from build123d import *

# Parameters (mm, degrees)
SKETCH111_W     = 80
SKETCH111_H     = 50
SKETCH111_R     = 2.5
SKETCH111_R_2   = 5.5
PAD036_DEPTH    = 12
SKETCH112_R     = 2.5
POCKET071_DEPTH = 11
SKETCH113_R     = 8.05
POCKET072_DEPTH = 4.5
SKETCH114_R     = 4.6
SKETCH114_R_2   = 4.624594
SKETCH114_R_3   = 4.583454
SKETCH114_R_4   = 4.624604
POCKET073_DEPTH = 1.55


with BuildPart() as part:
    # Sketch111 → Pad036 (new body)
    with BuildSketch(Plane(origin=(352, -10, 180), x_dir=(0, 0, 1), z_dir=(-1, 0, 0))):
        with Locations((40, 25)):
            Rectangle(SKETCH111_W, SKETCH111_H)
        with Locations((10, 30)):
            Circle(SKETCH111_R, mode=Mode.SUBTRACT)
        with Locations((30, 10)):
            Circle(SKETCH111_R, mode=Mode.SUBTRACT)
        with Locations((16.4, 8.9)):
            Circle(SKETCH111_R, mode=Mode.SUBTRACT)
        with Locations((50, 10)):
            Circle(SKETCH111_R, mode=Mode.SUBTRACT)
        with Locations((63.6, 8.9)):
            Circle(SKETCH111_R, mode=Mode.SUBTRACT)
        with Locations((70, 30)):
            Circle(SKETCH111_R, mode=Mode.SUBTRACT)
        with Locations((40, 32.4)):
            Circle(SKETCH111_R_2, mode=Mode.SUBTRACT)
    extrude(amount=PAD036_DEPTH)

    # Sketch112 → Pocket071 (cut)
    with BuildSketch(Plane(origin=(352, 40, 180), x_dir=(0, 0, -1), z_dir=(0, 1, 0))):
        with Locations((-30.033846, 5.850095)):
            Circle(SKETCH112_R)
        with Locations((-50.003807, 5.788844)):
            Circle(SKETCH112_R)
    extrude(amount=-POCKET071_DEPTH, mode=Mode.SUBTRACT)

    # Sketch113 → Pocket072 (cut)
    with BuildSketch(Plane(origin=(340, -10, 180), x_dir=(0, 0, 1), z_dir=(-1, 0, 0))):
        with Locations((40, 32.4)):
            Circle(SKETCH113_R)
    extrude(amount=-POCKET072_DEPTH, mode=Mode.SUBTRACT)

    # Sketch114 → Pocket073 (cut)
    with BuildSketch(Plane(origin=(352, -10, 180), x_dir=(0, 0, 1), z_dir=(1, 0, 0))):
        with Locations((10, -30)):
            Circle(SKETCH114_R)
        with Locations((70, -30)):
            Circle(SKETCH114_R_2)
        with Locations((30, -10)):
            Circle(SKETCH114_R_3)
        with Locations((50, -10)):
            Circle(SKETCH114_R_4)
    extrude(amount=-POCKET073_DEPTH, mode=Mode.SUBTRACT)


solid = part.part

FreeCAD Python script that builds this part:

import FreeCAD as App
import Part
import Sketcher
from FreeCAD import Vector

doc = App.newDocument("Part")
body = doc.addObject("PartDesign::Body", "Body")

# Sketch on YZ plane
sketch1 = doc.addObject("Sketcher::SketchObject", "Sketch")
body.addObject(sketch1)
sketch1.AttachmentSupport = (doc.YZ_Plane, [""])
sketch1.MapMode = "FlatFace"
sketch1.AttachmentOffset = App.Placement(Vector(0, 0, 352), App.Rotation())
sketch1.addGeometry([
    Part.LineSegment(Vector(40, 180, 0), Vector(-10, 180, 0)),  # 0
    Part.LineSegment(Vector(-10, 180, 0), Vector(-10, 260, 0)),  # 1
    Part.LineSegment(Vector(-10, 260, 0), Vector(40, 260, 0)),  # 2
    Part.LineSegment(Vector(40, 260, 0), Vector(40, 180, 0)),  # 3
    Part.Circle(Vector(-1.1, 196.4, 0), Vector(0, 0, 1), 2.5),  # 4
    Part.Circle(Vector(0, 210, 0), Vector(0, 0, 1), 2.5),  # 5
    Part.Circle(Vector(0, 230, 0), Vector(0, 0, 1), 2.5),  # 6
    Part.Circle(Vector(-1.1, 243.6, 0), Vector(0, 0, 1), 2.5),  # 7
    Part.Circle(Vector(20, 190, 0), Vector(0, 0, 1), 2.5),  # 8
    Part.Circle(Vector(20, 250, 0), Vector(0, 0, 1), 2.5),  # 9
    Part.Circle(Vector(22.4, 220, 0), Vector(0, 0, 1), 5.5),  # 10
], False)
sketch1.addConstraint([
    Sketcher.Constraint("Coincident", 0, 2, 1, 1),
    Sketcher.Constraint("Coincident", 1, 2, 2, 1),
    Sketcher.Constraint("Coincident", 2, 2, 3, 1),
    Sketcher.Constraint("Coincident", 3, 2, 0, 1),
    Sketcher.Constraint("Horizontal", 0),
    Sketcher.Constraint("Vertical", 1),
    Sketcher.Constraint("Horizontal", 2),
    Sketcher.Constraint("Vertical", 3),
    Sketcher.Constraint("Equal", 4, 5),
    Sketcher.Constraint("Equal", 5, 6),
    Sketcher.Constraint("Equal", 6, 7),
    Sketcher.Constraint("Equal", 7, 8),
    Sketcher.Constraint("Equal", 8, 9),
    Sketcher.Constraint("PointOnObject", 5, 3, -2),
    Sketcher.Constraint("PointOnObject", 6, 3, -2),
    Sketcher.Constraint("Vertical", 4, 3, 7, 3),
    Sketcher.Constraint("Vertical", 8, 3, 9, 3),
    Sketcher.Constraint("Diameter", 4, 5.0),
    Sketcher.Constraint("Diameter", 10, 11.0),
    Sketcher.Constraint("DistanceX", 0, 2, 0, 1, 50.0),
    Sketcher.Constraint("DistanceY", 1, 1, 1, 2, 80.0),
    Sketcher.Constraint("DistanceY", -1, 1, 5, 3, 210.0),
    Sketcher.Constraint("DistanceY", -1, 1, 6, 3, 230.0),
    Sketcher.Constraint("DistanceX", -1, 1, 8, 3, 20.0),
    Sketcher.Constraint("DistanceY", -1, 1, 8, 3, 190.0),
    Sketcher.Constraint("DistanceY", -1, 1, 9, 3, 250.0),
    Sketcher.Constraint("DistanceY", -1, 1, 10, 3, 220.0),
    Sketcher.Constraint("DistanceX", 0, 2, -1, 1, 10.0),
    Sketcher.Constraint("DistanceY", -1, 1, 0, 2, 180.0),
    Sketcher.Constraint("DistanceX", 4, 3, -1, 1, 1.1),
    Sketcher.Constraint("DistanceY", -1, 1, 4, 3, 196.4),
    Sketcher.Constraint("DistanceY", -1, 1, 7, 3, 243.6),
    Sketcher.Constraint("DistanceX", -1, 1, 10, 3, 22.4),
])
pad1 = doc.addObject("PartDesign::Pad", "Pad")
body.addObject(pad1)
pad1.Profile = sketch1
pad1.Length = 12
pad1.Reversed = True

# Sketch on XZ plane
sketch2 = doc.addObject("Sketcher::SketchObject", "Sketch001")
body.addObject(sketch2)
sketch2.AttachmentSupport = (doc.XZ_Plane, [""])
sketch2.MapMode = "FlatFace"
sketch2.AttachmentOffset = App.Placement(Vector(0, 0, -40), App.Rotation())
sketch2.addGeometry([
    Part.Circle(Vector(346.1, 210, 0), Vector(0, 0, 1), 2.5),
    Part.Circle(Vector(346.2, 230, 0), Vector(0, 0, 1), 2.5),
], False)
sketch2.addConstraint([
    Sketcher.Constraint("Equal", 0, 1),
    Sketcher.Constraint("Diameter", 0, 5.0),
    Sketcher.Constraint("DistanceX", 0, 3, 1, 3, 0.061251),
    Sketcher.Constraint("DistanceY", 0, 3, 1, 3, 19.969961),
    Sketcher.Constraint("DistanceX", -1, 1, 0, 3, 346.149905),
    Sketcher.Constraint("DistanceY", -1, 1, 0, 3, 210.033846),
])
pocket1 = doc.addObject("PartDesign::Pocket", "Pocket")
body.addObject(pocket1)
pocket1.Profile = sketch2
pocket1.Length = 11
pocket1.Reversed = True

# Sketch on YZ plane
sketch3 = doc.addObject("Sketcher::SketchObject", "Sketch002")
body.addObject(sketch3)
sketch3.AttachmentSupport = (doc.YZ_Plane, [""])
sketch3.MapMode = "FlatFace"
sketch3.AttachmentOffset = App.Placement(Vector(0, 0, 340), App.Rotation())
sketch3.addGeometry(Part.Circle(Vector(22, 220, 0), Vector(0, 0, 1), 8), False)
sketch3.addConstraint([
    Sketcher.Constraint("Diameter", 0, 16.1),
    Sketcher.Constraint("DistanceY", -1, 1, 0, 3, 220.0),
    Sketcher.Constraint("DistanceX", -1, 1, 0, 3, 22.4),
])
pocket2 = doc.addObject("PartDesign::Pocket", "Pocket001")
body.addObject(pocket2)
pocket2.Profile = sketch3
pocket2.Length = 4.5
pocket2.Reversed = True

# Sketch on YZ plane
sketch4 = doc.addObject("Sketcher::SketchObject", "Sketch003")
body.addObject(sketch4)
sketch4.AttachmentSupport = (doc.YZ_Plane, [""])
sketch4.MapMode = "FlatFace"
sketch4.AttachmentOffset = App.Placement(Vector(0, 0, 352), App.Rotation())
sketch4.addGeometry([
    Part.Circle(Vector(20, 190, 0), Vector(0, 0, 1), 4.6),
    Part.Circle(Vector(20, 250, 0), Vector(0, 0, 1), 4.6),
    Part.Circle(Vector(0, 210, 0), Vector(0, 0, 1), 4.6),
    Part.Circle(Vector(0, 230, 0), Vector(0, 0, 1), 4.6),
], False)
sketch4.addConstraint([
    Sketcher.Constraint("PointOnObject", 2, 3, -2),
    Sketcher.Constraint("PointOnObject", 3, 3, -2),
    Sketcher.Constraint("Vertical", 0, 3, 1, 3),
    Sketcher.Constraint("Diameter", 0, 9.2),
    Sketcher.Constraint("DistanceX", -1, 1, 0, 3, 20.0),
    Sketcher.Constraint("DistanceY", -1, 1, 0, 3, 190.0),
    Sketcher.Constraint("DistanceY", -1, 1, 1, 3, 250.0),
    Sketcher.Constraint("DistanceY", -1, 1, 2, 3, 210.0),
    Sketcher.Constraint("DistanceY", -1, 1, 3, 3, 230.0),
    Sketcher.Constraint("Diameter", 1, 9.249188),
    Sketcher.Constraint("Diameter", 2, 9.166908),
    Sketcher.Constraint("Diameter", 3, 9.249208),
])
pocket3 = doc.addObject("PartDesign::Pocket", "Pocket002")
body.addObject(pocket3)
pocket3.Profile = sketch4
pocket3.Length = 1.55

doc.recompute()
